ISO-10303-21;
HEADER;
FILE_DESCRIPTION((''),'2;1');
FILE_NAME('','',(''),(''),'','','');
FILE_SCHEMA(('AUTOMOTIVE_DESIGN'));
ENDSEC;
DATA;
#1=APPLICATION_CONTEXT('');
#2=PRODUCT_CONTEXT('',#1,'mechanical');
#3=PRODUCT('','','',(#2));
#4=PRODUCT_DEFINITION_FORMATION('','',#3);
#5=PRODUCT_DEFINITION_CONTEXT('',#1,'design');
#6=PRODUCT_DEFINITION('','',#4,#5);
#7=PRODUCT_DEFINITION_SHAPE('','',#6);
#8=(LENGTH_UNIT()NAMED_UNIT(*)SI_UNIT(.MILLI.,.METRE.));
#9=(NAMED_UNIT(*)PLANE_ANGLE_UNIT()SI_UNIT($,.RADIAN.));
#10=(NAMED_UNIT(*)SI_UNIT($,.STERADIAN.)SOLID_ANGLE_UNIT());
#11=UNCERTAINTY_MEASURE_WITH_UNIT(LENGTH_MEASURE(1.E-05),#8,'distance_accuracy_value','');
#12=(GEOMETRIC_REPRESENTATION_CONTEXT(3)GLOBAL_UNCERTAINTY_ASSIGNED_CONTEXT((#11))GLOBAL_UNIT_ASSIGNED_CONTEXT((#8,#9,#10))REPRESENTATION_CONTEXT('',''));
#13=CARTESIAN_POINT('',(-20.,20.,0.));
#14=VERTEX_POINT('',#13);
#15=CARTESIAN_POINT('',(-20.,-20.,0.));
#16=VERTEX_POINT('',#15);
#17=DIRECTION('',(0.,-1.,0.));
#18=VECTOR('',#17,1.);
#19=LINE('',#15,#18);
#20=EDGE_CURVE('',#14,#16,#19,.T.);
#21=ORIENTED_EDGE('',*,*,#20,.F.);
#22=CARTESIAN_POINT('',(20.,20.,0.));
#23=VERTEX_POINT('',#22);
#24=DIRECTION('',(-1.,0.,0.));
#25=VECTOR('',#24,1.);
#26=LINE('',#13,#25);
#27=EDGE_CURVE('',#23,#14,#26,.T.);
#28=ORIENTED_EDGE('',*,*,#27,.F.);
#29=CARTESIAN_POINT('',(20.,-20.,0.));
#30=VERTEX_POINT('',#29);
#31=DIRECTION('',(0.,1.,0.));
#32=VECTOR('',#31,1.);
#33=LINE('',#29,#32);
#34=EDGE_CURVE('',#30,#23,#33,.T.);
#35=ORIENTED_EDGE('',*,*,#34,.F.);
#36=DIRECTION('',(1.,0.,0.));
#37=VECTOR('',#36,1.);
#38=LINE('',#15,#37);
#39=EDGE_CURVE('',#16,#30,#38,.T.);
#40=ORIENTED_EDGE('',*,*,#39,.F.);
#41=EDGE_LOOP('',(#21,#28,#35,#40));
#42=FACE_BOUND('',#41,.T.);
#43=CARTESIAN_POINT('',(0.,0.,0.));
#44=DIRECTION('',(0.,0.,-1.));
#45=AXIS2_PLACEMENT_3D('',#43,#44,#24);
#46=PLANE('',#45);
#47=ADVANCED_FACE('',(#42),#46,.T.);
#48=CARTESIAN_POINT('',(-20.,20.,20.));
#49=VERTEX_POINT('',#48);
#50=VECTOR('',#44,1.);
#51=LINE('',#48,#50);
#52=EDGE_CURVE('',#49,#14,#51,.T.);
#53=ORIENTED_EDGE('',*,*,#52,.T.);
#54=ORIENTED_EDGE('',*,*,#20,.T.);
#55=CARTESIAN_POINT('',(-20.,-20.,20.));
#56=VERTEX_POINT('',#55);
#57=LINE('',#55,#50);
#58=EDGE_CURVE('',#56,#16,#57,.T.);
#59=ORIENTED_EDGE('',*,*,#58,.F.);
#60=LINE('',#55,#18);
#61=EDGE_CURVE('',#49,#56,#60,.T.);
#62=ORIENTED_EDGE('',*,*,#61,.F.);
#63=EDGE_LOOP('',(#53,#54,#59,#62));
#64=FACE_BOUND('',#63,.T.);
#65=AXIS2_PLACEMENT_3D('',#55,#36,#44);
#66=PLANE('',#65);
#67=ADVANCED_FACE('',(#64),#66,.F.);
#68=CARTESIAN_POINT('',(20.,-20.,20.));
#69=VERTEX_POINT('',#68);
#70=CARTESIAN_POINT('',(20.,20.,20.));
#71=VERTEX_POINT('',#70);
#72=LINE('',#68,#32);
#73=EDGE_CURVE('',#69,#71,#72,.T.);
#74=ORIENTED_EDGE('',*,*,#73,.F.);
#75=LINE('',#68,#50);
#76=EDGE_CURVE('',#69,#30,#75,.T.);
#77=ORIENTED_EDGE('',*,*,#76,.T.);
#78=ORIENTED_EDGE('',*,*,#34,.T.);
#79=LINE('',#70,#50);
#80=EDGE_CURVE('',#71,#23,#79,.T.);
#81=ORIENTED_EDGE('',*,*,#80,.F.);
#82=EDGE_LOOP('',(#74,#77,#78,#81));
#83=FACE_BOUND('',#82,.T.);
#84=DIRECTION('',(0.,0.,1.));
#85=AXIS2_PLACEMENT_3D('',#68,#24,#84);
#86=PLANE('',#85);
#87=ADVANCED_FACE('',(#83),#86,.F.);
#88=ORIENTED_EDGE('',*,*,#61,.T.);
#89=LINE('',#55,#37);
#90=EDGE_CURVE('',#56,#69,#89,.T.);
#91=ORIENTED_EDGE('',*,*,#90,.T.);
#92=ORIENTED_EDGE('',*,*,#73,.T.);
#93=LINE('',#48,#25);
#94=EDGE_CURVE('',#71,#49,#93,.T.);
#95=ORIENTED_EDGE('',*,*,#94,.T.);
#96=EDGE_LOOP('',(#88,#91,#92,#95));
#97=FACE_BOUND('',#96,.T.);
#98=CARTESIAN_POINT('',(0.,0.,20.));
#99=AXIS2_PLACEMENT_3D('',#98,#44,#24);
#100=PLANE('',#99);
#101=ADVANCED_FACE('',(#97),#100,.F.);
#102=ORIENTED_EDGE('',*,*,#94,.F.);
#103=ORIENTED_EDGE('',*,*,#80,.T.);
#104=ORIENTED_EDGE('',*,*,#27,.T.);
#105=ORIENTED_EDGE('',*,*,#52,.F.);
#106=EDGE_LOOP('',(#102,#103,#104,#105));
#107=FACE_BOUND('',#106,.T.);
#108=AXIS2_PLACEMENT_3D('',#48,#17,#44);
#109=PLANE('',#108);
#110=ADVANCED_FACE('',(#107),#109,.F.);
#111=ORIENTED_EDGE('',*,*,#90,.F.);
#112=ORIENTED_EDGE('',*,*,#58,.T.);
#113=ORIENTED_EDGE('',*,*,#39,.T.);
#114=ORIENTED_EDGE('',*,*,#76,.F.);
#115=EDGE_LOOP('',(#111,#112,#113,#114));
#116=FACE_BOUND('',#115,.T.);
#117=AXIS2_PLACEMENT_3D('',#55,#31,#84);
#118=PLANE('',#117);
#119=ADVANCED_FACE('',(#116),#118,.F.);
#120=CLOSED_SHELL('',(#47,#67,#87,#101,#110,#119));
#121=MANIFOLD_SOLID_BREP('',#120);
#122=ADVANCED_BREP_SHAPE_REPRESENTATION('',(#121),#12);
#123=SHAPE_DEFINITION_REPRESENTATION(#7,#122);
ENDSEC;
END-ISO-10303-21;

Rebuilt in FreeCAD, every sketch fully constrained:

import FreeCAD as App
import Part
import Sketcher
Q = App.Units.Quantity


def add_polygon(sketch, points):
    """Adds a closed chain of lines whose ends are joined by coincident constraints."""
    first, n = sketch.GeometryCount, len(points)
    for a, b in zip(points, points[1:] + points[:1]):
        sketch.addGeometry(Part.LineSegment(App.Vector(*a, 0), App.Vector(*b, 0)), False)
    for i in range(n):
        sketch.addConstraint(Sketcher.Constraint("Coincident", first + i, 2, first + (i + 1) % n, 1))

doc = App.newDocument("Part")
body = doc.addObject("PartDesign::Body", "Body")

# Sketch on XY plane
sketch1 = body.newObject("Sketcher::SketchObject", "Sketch")
sketch1.AttachmentSupport = (doc.getObject("XY_Plane"), [""])
sketch1.MapMode = "FlatFace"
add_polygon(sketch1, [(-20, 20), (-20, -20), (20, -20), (20, 20)])  # lines 0-3
sketch1.addConstraint(Sketcher.Constraint("Vertical", 0))
sketch1.addConstraint(Sketcher.Constraint("Horizontal", 1))
sketch1.addConstraint(Sketcher.Constraint("Vertical", 2))
sketch1.addConstraint(Sketcher.Constraint("Horizontal", 3))
sketch1.addConstraint(Sketcher.Constraint("Symmetric", 0, 2, 2, 2, -1, 1))
sketch1.addConstraint(Sketcher.Constraint("Equal", 3, 0))
sketch1.addConstraint(Sketcher.Constraint("DistanceX", 1, 1, 1, 2, Q("40 mm")))
pad1 = body.newObject("PartDesign::Pad", "Pad")
pad1.Profile = sketch1
pad1.Length = 20

doc.recompute()
